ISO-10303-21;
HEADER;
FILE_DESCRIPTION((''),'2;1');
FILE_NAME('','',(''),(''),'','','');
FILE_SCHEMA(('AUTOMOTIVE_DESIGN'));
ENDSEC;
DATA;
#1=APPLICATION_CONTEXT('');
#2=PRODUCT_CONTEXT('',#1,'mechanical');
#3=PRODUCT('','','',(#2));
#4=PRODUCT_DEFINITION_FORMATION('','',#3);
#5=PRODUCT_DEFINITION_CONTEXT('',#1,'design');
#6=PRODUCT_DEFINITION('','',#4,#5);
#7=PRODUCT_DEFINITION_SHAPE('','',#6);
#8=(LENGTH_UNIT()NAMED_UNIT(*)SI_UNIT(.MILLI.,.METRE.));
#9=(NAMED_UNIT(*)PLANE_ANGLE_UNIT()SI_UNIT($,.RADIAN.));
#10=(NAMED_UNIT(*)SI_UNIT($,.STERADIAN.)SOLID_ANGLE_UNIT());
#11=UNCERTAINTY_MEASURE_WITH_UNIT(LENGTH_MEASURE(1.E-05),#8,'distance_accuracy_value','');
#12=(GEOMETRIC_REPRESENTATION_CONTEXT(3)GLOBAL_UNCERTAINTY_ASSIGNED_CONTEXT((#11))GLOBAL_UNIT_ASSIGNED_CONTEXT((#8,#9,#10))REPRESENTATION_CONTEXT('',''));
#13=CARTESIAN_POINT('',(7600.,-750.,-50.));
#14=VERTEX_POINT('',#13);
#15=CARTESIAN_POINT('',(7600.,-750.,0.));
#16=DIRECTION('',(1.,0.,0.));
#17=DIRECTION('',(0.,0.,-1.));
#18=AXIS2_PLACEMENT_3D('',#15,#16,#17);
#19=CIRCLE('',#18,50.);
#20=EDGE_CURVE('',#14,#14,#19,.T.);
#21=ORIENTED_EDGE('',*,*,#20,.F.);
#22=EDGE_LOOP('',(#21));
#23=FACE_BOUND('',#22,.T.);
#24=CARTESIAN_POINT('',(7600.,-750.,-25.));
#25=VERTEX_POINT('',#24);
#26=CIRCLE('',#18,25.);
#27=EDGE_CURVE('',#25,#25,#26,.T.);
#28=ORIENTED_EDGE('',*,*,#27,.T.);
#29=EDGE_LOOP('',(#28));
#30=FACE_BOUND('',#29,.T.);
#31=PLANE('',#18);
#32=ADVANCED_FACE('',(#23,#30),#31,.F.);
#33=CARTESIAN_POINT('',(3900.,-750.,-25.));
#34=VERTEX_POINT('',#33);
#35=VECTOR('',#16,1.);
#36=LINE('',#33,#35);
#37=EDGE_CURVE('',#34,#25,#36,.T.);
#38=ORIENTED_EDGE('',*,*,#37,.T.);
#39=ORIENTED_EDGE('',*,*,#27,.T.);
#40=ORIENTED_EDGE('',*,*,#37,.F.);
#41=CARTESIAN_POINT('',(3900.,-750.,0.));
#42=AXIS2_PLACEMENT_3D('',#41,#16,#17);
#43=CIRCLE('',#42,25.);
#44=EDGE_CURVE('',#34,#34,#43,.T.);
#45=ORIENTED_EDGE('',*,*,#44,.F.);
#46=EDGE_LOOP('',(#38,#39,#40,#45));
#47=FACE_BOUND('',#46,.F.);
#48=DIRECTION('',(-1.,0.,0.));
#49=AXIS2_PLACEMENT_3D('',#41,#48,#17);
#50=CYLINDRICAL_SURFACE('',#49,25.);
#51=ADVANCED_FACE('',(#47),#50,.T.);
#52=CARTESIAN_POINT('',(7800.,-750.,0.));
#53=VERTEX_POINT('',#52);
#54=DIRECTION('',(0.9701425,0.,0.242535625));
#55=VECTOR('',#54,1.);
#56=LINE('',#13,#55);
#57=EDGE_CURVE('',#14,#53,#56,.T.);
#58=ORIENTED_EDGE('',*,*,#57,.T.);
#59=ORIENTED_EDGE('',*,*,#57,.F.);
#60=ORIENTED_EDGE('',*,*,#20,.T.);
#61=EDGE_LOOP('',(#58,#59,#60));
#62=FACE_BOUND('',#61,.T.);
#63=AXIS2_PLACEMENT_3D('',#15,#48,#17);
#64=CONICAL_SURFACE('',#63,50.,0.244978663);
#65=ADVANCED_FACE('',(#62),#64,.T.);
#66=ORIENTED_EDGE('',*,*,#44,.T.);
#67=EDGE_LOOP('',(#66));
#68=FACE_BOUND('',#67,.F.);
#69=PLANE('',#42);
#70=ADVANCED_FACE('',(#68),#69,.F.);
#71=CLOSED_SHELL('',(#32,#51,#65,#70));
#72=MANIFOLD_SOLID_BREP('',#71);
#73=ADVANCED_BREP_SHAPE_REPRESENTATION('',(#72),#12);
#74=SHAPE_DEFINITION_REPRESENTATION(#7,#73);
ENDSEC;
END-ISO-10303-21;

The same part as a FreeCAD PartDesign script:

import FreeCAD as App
import Part
import Sketcher

V = App.Vector


def add_polygon(sketch, points):
    """Adds a closed chain of lines whose ends are joined by coincident constraints."""
    first, n = sketch.GeometryCount, len(points)
    for a, b in zip(points, points[1:] + points[:1]):
        sketch.addGeometry(Part.LineSegment(App.Vector(*a, 0), App.Vector(*b, 0)), False)
    for i in range(n):
        sketch.addConstraint(Sketcher.Constraint("Coincident", first + i, 2, first + (i + 1) % n, 1))

doc = App.newDocument("Part")
body = doc.addObject("PartDesign::Body", "Body")

# Sketch on XZ plane
sketch1 = body.newObject("Sketcher::SketchObject", "Sketch")
sketch1.AttachmentSupport = (doc.getObject("XZ_Plane"), [""])
sketch1.MapMode = "FlatFace"
add_polygon(sketch1, [(3700, 0), (3700, -50), (3900, 0)])  # lines 0-2
sketch1.addConstraint(Sketcher.Constraint("Vertical", 0))
sketch1.addConstraint(Sketcher.Constraint("Horizontal", 2))
sketch1.addConstraint(Sketcher.Constraint("PointOnObject", 1, 2, -1))
sketch1.addConstraint(Sketcher.Constraint("DistanceX", 2, 2, 2, 1, 200.0))
sketch1.addConstraint(Sketcher.Constraint("DistanceY", 0, 2, 0, 1, 50.0))
sketch1.addConstraint(Sketcher.Constraint("DistanceX", -1, 1, 0, 2, 3700.0))
revolution = body.newObject("PartDesign::Revolution", "Revolution")
revolution.Profile = sketch1
revolution.ReferenceAxis = (sketch1, ["H_Axis"])
revolution.Angle = 360
body2 = doc.addObject("PartDesign::Body", "Body001")

# Sketch on YZ plane
sketch2 = body2.newObject("Sketcher::SketchObject", "Sketch001")
sketch2.AttachmentSupport = (doc.getObject("YZ_Plane001"), [""])
sketch2.MapMode = "FlatFace"
sketch2.addGeometry(Part.Circle(V(0, 0, 0), V(0, 0, 1), 25), False)
sketch2.addConstraint(Sketcher.Constraint("Coincident", 0, 3, -1, 1))
sketch2.addConstraint(Sketcher.Constraint("Diameter", 0, 50.0))
pad1 = body2.newObject("PartDesign::Pad", "Pad")
pad1.Profile = sketch2
pad1.Length = 3700
doc.recompute()

boolean = body2.newObject("PartDesign::Boolean", "Boolean")
boolean.Type = "Fuse"
boolean.addObjects([body])
body3 = doc.addObject("PartDesign::Body", "Body002")
doc.recompute()

body2.Placement = App.Placement(V(3900, -750, 0), App.Rotation(V(0, 0, 1), 0))
boolean2 = body3.newObject("PartDesign::Boolean", "Boolean001")
boolean2.Type = "Fuse"
boolean2.addObjects([body2])

doc.recompute()
